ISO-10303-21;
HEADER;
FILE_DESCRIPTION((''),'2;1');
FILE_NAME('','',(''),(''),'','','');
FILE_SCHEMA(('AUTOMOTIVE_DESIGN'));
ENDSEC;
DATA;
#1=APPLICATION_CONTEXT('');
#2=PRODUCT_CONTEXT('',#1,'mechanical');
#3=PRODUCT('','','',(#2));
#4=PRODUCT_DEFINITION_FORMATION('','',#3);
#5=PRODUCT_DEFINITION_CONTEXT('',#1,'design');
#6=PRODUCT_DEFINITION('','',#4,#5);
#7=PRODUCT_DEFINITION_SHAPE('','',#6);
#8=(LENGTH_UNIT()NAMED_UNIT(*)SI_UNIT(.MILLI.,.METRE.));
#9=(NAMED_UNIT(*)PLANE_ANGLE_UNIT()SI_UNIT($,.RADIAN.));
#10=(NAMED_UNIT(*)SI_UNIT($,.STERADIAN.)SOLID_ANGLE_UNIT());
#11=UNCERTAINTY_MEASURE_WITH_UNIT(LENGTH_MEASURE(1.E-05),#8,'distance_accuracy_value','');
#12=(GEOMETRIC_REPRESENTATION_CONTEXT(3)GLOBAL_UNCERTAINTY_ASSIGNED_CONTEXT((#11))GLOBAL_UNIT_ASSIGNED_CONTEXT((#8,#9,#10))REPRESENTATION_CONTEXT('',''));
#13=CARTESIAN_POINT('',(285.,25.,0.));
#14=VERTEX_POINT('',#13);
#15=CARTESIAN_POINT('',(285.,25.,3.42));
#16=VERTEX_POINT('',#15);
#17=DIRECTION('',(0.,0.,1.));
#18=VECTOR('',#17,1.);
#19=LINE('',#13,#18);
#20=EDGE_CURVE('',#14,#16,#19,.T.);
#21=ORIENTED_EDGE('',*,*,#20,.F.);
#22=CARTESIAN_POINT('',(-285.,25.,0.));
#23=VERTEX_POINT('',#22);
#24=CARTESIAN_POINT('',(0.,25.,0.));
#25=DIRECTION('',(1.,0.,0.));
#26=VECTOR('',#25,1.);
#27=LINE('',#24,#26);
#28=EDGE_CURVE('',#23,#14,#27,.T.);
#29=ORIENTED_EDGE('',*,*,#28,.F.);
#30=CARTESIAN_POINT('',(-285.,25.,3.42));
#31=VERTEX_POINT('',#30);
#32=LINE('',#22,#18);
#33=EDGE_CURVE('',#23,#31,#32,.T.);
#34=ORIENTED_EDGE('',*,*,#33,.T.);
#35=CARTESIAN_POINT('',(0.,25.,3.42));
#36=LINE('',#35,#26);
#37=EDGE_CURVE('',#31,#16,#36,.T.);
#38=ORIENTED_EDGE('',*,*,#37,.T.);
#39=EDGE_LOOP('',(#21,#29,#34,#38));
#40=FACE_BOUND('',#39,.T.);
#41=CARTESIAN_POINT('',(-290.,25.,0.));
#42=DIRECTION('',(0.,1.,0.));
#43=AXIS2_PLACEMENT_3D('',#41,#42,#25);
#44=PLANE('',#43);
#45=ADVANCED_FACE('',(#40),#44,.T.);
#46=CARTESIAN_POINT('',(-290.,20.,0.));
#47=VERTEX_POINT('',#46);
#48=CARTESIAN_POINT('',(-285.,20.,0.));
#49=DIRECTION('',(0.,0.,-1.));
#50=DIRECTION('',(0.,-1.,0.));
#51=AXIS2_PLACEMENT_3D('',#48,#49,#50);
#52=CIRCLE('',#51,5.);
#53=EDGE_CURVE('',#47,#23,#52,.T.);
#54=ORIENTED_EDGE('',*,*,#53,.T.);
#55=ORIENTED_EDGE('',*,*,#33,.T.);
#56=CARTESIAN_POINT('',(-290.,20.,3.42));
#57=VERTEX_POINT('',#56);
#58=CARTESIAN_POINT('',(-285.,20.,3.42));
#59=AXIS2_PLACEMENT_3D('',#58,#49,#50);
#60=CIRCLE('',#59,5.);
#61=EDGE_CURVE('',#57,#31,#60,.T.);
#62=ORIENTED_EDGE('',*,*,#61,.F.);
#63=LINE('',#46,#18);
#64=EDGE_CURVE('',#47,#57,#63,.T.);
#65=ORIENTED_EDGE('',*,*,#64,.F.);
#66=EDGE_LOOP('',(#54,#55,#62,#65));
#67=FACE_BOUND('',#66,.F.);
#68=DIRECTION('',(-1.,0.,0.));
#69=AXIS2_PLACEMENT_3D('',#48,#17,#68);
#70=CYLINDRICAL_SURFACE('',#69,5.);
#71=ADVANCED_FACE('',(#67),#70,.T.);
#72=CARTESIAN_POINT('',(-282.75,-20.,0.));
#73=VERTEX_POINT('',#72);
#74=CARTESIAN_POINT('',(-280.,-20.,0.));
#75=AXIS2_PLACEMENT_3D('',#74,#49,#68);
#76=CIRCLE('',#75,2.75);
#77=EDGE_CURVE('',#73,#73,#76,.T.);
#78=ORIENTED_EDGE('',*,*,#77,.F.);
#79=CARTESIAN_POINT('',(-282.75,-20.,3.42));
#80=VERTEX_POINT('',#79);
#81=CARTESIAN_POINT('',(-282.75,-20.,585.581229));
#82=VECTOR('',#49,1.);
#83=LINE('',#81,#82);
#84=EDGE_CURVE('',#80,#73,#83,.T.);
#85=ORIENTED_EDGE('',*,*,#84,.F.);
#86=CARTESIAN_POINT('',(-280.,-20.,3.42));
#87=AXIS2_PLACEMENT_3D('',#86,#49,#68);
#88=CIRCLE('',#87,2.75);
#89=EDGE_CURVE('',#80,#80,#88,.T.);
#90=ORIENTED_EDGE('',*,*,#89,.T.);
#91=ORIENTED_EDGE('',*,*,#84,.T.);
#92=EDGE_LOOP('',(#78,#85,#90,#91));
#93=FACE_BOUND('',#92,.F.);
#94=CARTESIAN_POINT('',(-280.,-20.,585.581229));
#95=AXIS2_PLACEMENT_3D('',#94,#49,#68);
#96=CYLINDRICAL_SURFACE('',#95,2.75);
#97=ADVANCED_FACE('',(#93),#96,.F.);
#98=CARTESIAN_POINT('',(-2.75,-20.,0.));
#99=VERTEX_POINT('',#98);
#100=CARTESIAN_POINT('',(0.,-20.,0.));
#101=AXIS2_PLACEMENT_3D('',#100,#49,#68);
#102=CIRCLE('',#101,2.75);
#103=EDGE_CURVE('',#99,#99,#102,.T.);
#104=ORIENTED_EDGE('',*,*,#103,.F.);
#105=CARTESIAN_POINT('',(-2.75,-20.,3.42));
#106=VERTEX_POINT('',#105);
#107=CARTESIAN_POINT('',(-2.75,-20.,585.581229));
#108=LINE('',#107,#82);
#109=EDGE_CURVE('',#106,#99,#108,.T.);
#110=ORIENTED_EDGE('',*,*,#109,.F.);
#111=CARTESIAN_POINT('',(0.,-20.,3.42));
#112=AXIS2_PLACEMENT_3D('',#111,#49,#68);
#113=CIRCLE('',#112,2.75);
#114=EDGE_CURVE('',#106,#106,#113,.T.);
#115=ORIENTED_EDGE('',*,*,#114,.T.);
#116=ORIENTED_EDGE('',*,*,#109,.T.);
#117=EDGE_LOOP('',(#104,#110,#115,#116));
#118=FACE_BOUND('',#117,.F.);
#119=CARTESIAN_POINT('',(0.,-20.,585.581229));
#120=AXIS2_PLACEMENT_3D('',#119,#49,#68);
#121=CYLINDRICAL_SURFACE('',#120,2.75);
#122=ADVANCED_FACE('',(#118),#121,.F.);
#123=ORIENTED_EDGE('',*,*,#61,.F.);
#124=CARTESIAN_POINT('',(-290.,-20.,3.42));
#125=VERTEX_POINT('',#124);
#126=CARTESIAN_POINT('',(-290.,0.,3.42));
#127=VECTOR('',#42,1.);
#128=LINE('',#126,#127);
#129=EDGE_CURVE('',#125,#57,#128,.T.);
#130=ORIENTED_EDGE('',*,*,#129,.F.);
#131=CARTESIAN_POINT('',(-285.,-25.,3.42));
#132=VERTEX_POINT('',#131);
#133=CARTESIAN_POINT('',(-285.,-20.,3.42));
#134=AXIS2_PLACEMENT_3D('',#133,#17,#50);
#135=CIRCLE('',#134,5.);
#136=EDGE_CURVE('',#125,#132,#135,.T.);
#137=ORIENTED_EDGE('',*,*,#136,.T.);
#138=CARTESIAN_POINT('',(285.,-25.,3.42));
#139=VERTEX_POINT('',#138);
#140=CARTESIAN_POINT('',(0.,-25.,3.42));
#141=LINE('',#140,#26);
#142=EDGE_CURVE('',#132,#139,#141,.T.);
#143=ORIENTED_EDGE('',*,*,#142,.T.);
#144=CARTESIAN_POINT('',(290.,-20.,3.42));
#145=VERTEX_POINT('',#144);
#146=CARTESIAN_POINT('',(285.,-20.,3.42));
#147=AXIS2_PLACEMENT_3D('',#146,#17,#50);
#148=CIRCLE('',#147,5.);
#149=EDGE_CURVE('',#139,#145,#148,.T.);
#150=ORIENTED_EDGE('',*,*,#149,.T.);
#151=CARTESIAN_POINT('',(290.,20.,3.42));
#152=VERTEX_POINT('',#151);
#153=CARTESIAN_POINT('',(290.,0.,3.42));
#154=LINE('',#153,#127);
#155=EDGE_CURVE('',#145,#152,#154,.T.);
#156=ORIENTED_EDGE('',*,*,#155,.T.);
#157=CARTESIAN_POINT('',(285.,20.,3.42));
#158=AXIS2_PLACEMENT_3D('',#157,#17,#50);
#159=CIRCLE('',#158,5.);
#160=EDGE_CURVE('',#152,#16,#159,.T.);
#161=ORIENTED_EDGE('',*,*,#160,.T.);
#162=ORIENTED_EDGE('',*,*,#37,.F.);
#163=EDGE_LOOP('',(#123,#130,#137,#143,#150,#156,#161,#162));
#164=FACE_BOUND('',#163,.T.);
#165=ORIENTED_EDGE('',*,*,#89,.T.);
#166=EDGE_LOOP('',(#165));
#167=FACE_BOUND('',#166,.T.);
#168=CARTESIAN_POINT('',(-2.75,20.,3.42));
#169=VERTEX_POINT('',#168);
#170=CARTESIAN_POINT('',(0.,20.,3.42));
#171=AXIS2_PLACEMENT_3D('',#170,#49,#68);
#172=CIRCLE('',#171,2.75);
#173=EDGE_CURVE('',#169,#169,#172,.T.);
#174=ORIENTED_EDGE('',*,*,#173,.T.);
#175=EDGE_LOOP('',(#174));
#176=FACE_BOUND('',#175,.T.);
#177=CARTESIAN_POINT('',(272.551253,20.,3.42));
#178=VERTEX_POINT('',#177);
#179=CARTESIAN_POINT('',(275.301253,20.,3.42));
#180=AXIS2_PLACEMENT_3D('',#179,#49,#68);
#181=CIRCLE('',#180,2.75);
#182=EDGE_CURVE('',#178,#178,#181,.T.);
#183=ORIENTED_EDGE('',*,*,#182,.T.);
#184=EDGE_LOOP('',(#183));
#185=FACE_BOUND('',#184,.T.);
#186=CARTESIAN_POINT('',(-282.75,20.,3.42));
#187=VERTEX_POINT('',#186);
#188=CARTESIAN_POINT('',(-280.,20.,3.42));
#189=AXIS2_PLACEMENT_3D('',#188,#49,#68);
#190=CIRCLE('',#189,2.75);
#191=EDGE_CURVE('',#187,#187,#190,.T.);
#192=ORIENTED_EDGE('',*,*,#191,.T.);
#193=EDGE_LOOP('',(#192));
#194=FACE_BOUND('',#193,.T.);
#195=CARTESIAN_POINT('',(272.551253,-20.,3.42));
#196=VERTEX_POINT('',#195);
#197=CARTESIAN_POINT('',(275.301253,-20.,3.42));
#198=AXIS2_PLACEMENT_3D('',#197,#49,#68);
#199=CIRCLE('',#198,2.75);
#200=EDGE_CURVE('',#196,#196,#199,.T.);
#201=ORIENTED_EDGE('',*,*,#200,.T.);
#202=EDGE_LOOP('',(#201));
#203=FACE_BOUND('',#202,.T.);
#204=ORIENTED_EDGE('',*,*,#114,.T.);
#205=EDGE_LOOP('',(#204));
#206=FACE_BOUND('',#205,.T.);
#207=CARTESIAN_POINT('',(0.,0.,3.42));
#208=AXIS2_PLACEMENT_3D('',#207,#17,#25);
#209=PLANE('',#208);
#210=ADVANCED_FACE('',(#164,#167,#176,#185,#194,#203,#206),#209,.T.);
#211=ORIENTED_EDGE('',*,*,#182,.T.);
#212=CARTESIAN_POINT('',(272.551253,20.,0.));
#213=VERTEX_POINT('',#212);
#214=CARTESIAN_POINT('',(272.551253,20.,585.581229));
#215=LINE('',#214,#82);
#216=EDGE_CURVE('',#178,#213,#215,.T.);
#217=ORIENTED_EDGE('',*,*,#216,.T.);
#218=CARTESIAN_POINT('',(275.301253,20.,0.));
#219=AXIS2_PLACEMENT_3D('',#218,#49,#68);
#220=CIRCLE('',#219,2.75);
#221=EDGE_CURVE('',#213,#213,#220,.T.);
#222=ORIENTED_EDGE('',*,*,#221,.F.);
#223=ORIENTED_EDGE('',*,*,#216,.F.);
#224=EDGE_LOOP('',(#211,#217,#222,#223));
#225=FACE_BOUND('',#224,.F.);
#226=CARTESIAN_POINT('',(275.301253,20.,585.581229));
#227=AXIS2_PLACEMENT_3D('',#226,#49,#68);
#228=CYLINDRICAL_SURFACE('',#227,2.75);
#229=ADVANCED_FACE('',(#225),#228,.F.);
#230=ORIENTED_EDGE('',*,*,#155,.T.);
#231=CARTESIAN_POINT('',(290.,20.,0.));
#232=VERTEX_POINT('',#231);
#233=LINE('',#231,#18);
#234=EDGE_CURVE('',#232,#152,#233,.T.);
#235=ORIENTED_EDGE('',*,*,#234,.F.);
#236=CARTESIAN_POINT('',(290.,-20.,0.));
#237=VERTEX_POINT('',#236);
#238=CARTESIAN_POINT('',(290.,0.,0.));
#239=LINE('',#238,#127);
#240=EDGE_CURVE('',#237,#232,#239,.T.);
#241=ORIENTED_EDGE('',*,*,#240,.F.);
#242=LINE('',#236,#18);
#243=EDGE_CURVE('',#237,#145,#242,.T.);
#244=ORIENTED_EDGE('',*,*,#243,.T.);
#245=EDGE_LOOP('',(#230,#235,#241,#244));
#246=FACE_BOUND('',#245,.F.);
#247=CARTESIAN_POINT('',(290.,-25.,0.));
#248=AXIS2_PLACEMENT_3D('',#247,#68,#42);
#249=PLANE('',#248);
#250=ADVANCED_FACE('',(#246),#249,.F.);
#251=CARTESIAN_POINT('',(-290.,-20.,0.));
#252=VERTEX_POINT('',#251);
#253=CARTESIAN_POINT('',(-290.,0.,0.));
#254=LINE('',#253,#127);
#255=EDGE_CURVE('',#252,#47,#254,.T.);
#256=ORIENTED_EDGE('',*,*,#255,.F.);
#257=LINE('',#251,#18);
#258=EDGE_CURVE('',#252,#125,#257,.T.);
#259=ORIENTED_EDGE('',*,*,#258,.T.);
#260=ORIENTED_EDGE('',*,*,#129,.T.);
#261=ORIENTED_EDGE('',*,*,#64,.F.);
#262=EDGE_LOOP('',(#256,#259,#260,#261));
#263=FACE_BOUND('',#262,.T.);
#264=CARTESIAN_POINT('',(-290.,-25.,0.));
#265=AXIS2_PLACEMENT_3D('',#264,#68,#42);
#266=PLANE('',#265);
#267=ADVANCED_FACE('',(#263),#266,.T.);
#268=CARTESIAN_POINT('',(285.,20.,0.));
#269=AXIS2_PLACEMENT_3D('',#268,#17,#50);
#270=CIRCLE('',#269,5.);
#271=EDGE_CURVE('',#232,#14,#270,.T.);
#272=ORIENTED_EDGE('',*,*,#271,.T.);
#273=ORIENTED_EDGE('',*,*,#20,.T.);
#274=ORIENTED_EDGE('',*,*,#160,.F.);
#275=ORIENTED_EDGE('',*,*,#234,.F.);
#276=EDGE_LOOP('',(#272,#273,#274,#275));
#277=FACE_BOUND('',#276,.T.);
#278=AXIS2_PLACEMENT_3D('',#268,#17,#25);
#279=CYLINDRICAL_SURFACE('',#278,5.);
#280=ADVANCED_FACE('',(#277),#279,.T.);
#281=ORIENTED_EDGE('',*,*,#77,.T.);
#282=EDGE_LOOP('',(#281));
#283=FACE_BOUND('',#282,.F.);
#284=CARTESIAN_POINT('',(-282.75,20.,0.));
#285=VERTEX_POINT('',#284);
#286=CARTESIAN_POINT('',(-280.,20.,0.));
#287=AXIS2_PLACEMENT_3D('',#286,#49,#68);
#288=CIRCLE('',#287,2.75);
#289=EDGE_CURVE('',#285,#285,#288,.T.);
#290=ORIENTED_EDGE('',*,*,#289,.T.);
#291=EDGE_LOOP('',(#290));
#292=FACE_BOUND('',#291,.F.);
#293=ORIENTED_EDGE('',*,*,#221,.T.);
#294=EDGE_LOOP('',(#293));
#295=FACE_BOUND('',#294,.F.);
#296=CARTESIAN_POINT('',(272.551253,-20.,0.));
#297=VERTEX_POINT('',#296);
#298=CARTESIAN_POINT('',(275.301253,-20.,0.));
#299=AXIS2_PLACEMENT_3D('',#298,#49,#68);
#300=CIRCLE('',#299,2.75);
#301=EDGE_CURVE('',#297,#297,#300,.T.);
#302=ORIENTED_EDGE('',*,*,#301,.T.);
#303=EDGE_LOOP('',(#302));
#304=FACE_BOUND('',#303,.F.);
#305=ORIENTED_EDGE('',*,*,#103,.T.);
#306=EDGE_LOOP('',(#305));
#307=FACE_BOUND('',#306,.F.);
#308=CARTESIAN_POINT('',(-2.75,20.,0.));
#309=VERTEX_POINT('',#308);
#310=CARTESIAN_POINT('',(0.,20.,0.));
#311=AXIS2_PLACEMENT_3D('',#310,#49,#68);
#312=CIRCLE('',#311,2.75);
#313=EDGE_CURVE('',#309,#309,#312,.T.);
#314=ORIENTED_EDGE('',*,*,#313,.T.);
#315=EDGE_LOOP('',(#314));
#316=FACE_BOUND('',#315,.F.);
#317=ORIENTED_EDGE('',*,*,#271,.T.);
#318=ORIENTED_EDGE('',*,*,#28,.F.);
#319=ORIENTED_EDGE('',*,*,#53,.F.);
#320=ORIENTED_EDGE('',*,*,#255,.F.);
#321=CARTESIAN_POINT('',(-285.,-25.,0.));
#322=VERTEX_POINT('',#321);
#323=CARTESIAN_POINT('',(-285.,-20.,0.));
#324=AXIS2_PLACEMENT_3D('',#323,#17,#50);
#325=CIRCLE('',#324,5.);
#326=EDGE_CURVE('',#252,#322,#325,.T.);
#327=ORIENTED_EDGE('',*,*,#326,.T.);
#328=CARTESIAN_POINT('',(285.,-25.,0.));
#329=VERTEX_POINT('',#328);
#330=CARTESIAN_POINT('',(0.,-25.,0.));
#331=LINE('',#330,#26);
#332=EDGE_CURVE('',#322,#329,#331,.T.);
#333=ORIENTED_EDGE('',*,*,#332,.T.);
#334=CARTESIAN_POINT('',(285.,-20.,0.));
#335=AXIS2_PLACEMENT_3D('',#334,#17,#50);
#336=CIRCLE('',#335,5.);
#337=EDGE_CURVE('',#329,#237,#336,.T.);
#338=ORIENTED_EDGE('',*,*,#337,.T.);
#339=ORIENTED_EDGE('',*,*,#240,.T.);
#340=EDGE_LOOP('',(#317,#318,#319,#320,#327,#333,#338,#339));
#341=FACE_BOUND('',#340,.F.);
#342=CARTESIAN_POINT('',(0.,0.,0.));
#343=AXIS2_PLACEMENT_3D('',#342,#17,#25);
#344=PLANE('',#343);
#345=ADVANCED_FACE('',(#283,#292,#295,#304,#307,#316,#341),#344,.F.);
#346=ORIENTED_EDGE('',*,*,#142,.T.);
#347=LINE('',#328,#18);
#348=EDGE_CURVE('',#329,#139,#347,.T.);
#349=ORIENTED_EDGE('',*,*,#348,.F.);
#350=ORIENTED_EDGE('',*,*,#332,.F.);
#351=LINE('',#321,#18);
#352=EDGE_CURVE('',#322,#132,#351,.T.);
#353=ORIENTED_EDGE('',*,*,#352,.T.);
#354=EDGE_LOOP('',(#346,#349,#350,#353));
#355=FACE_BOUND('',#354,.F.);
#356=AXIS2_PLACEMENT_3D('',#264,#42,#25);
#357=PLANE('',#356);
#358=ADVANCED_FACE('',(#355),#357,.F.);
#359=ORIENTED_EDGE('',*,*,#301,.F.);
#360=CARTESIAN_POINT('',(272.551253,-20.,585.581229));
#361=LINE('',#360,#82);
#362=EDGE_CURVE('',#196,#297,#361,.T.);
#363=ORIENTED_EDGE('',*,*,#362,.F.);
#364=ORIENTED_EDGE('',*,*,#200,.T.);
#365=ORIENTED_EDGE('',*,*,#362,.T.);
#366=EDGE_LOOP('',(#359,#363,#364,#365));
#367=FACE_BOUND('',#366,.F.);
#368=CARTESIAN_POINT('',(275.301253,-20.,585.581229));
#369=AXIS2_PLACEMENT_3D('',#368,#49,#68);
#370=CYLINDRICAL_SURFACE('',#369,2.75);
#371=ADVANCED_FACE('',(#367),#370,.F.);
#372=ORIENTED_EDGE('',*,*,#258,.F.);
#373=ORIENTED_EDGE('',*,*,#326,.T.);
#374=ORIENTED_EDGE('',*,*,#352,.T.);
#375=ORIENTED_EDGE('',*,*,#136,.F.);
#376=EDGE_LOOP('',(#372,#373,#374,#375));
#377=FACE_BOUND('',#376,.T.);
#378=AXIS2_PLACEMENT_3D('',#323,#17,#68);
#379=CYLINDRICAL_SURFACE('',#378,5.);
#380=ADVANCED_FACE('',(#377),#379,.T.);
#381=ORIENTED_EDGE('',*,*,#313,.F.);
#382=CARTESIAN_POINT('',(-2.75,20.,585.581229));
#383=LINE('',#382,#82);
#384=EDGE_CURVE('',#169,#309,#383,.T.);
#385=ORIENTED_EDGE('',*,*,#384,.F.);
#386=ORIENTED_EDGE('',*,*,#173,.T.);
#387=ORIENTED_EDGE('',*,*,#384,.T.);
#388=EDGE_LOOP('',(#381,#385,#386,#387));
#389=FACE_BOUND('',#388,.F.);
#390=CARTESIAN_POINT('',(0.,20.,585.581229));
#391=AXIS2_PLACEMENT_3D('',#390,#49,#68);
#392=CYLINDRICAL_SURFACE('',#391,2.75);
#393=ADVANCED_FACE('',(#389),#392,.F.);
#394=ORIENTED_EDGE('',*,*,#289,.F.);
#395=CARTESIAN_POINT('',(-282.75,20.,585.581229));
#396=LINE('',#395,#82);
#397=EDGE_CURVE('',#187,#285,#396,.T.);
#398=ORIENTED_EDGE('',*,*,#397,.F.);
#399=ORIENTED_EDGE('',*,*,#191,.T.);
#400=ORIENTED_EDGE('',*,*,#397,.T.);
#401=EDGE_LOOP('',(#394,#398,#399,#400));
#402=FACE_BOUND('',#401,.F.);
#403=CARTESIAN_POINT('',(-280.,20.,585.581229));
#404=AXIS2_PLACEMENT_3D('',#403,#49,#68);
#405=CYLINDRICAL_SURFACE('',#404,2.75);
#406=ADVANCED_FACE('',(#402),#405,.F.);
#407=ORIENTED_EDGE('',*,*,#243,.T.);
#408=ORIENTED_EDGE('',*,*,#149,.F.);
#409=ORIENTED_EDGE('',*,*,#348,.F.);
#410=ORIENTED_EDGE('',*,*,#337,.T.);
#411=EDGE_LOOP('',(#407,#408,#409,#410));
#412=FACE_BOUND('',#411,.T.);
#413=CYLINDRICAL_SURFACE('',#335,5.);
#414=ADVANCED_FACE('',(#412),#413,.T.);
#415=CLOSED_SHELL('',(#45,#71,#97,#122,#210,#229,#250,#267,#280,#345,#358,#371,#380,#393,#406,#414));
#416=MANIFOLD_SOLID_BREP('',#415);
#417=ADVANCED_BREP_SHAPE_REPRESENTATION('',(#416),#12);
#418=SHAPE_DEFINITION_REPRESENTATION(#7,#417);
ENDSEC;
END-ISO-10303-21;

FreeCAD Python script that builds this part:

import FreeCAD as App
import Part
import Sketcher

V = App.Vector
Q = App.Units.Quantity


def edges_at(feature, points):
    """Names of the edges that pass closest to the given points."""
    edges = feature.Shape.Edges
    near = lambda p: min(range(len(edges)), key=lambda i: edges[i].distToShape(Part.Vertex(*p))[0])
    return sorted({f"Edge{near(p) + 1}" for p in points})

doc = App.newDocument("Part")
params = doc.addObject("Spreadsheet::Sheet", "Params")
for row, (alias, value) in enumerate([
    ("sketch1_width", "580 mm"),
    ("sketch1_height", "50 mm"),
    ("pad1_length", "3.42 mm"),
    ("fillet_radius", "5 mm"),
    ("sketch2_diameter", "5.5 mm"),
    ("hole_diameter", "5.5 mm"),
], start=1):
    params.set(f"A{row}", alias)
    params.set(f"B{row}", "=" + value)
    params.setAlias(f"B{row}", alias)

body = doc.addObject("PartDesign::Body", "Body")

sketch1 = body.newObject("Sketcher::SketchObject", "Sketch")
sketch1.AttachmentSupport = (doc.getObject("XY_Plane"), [""])
sketch1.MapMode = "FlatFace"
sketch1.addGeometry([
    Part.LineSegment(V(-290, 25, 0), V(-290, -25, 0)),
    Part.LineSegment(V(-290, -25, 0), V(290, -25, 0)),
    Part.LineSegment(V(290, -25, 0), V(290, 25, 0)),
    Part.LineSegment(V(290, 25, 0), V(-290, 25, 0)),
], False)
sketch1.addConstraint([
    Sketcher.Constraint("Coincident", 0, 2, 1, 1),
    Sketcher.Constraint("Coincident", 1, 2, 2, 1),
    Sketcher.Constraint("Coincident", 2, 2, 3, 1),
    Sketcher.Constraint("Coincident", 3, 2, 0, 1),
    Sketcher.Constraint("Vertical", 0),
    Sketcher.Constraint("Horizontal", 1),
    Sketcher.Constraint("Vertical", 2),
    Sketcher.Constraint("Horizontal", 3),
    Sketcher.Constraint("Symmetric", 0, 2, 2, 2, -1, 1),
    Sketcher.Constraint("DistanceX", 1, 1, 1, 2, Q("580 mm")),
    Sketcher.Constraint("DistanceY", 0, 2, 0, 1, Q("50 mm")),
])
sketch1.setExpression("Constraints[9]", "Params.sketch1_width")
sketch1.setExpression("Constraints[10]", "Params.sketch1_height")
pad1 = body.newObject("PartDesign::Pad", "Pad")
pad1.Profile = sketch1
pad1.setExpression("Length", "Params.pad1_length")
doc.recompute()

fillet = body.newObject("PartDesign::Fillet", "Fillet")
fillet.Base = (pad1, edges_at(pad1, [
    (-290, 25, 1.71),
    (-290, -25, 1.71),
    (290, 25, 1.71),
    (290, -25, 1.71),
]))
fillet.setExpression("Radius", "Params.fillet_radius")

sketch2 = body.newObject("Sketcher::SketchObject", "Sketch001")
sketch2.AttachmentSupport = (doc.getObject("XY_Plane"), [""])
sketch2.MapMode = "FlatFace"
sketch2.AttachmentOffset = App.Placement(V(0, 0, 3.42), App.Rotation())
sketch2.addGeometry([
    Part.Circle(V(-280, -20, 0), V(0, 0, 1), 2.75),
    Part.Circle(V(0, -20, 0), V(0, 0, 1), 2.75),
    Part.Circle(V(275.301253, -20, 0), V(0, 0, 1), 2.75),
    Part.Circle(V(275.301253, 20, 0), V(0, 0, 1), 2.75),
    Part.Circle(V(0, 20, 0), V(0, 0, 1), 2.75),
    Part.Circle(V(-280, 20, 0), V(0, 0, 1), 2.75),
], False)
sketch2.addConstraint([
    Sketcher.Constraint("Equal", 0, 1),
    Sketcher.Constraint("Equal", 1, 2),
    Sketcher.Constraint("Equal", 2, 3),
    Sketcher.Constraint("Equal", 3, 4),
    Sketcher.Constraint("Equal", 4, 5),
    Sketcher.Constraint("Symmetric", 1, 3, 4, 3, -1, 1),
    Sketcher.Constraint("Symmetric", 2, 3, 3, 3, -1),
    Sketcher.Constraint("Symmetric", 0, 3, 5, 3, -1),
    Sketcher.Constraint("PointOnObject", 1, 3, -2),
    Sketcher.Constraint("Horizontal", 0, 3, 1, 3),
    Sketcher.Constraint("Horizontal", 1, 3, 2, 3),
    Sketcher.Constraint("Diameter", 0, Q("5.5 mm")),
    Sketcher.Constraint("DistanceX", 0, 3, -1, 1, Q("280 mm")),
    Sketcher.Constraint("DistanceY", 0, 3, -1, 1, Q("20 mm")),
    Sketcher.Constraint("DistanceX", -1, 1, 2, 3, Q("275.301253 mm")),
])
sketch2.setExpression("Constraints[11]", "Params.sketch2_diameter")
doc.recompute()
hole = body.newObject("PartDesign::Hole", "Hole")
hole.Profile = sketch2
hole.ThreadType = "None"
hole.setExpression("Diameter", "Params.hole_diameter")
hole.DepthType = "ThroughAll"

doc.recompute()
